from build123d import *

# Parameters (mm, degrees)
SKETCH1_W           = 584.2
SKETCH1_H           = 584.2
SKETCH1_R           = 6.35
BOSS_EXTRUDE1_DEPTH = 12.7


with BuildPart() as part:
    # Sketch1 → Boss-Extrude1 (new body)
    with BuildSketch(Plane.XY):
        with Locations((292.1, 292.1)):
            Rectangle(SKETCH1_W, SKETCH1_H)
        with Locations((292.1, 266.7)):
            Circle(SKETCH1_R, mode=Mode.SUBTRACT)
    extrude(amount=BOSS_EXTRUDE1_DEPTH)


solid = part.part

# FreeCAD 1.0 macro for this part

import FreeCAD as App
import Part
import Sketcher
from FreeCAD import Vector
Q = App.Units.Quantity


def add_polygon(sketch, points):
    """Adds a closed chain of lines whose ends are joined by coincident constraints."""
    first, n = sketch.GeometryCount, len(points)
    for a, b in zip(points, points[1:] + points[:1]):
        sketch.addGeometry(Part.LineSegment(App.Vector(*a, 0), App.Vector(*b, 0)), False)
    for i in range(n):
        sketch.addConstraint(Sketcher.Constraint("Coincident", first + i, 2, first + (i + 1) % n, 1))

doc = App.newDocument("Part")
params = doc.addObject("Spreadsheet::Sheet", "Params")
for row, (alias, value) in enumerate([
    ("sketch1_diameter", "0.5 in"),
    ("sketch1_width", "23 in"),
    ("pad1_length", "0.5 in"),
], start=1):
    params.set(f"A{row}", alias)
    params.set(f"B{row}", "=" + value)
    params.setAlias(f"B{row}", alias)

body = doc.addObject("PartDesign::Body", "Body")

# Sketch on XY plane
sketch1 = body.newObject("Sketcher::SketchObject", "Sketch")
sketch1.AttachmentSupport = (doc.getObject("XY_Plane"), [""])
sketch1.MapMode = "FlatFace"
add_polygon(sketch1, [(0, 584.2), (0, 0), (584.2, 0), (584.2, 584.2)])  # lines 0-3
sketch1.addGeometry(Part.Circle(Vector(292.1, 266.7, 0), Vector(0, 0, 1), 6.35), False)  # 4
sketch1.addConstraint(Sketcher.Constraint("Vertical", 0))
sketch1.addConstraint(Sketcher.Constraint("Horizontal", 1))
sketch1.addConstraint(Sketcher.Constraint("Vertical", 2))
sketch1.addConstraint(Sketcher.Constraint("Horizontal", 3))
sketch1.addConstraint(Sketcher.Constraint("Coincident", 0, 2, -1, 1))
sketch1.addConstraint(Sketcher.Constraint("Equal", 3, 0))
sketch1.addConstraint(Sketcher.Constraint("Diameter", 4, Q("0.5 in")))
sketch1.addConstraint(Sketcher.Constraint("DistanceX", 1, 1, 1, 2, Q("23 in")))
sketch1.addConstraint(Sketcher.Constraint("DistanceX", -1, 1, 4, 3, Q("11.5 in")))
sketch1.addConstraint(Sketcher.Constraint("DistanceY", -1, 1, 4, 3, Q("10.5 in")))
sketch1.setExpression("Constraints[10]", "Params.sketch1_diameter")
sketch1.setExpression("Constraints[11]", "Params.sketch1_width")
pad1 = body.newObject("PartDesign::Pad", "Pad")
pad1.Profile = sketch1
pad1.setExpression("Length", "Params.pad1_length")

doc.recompute()
